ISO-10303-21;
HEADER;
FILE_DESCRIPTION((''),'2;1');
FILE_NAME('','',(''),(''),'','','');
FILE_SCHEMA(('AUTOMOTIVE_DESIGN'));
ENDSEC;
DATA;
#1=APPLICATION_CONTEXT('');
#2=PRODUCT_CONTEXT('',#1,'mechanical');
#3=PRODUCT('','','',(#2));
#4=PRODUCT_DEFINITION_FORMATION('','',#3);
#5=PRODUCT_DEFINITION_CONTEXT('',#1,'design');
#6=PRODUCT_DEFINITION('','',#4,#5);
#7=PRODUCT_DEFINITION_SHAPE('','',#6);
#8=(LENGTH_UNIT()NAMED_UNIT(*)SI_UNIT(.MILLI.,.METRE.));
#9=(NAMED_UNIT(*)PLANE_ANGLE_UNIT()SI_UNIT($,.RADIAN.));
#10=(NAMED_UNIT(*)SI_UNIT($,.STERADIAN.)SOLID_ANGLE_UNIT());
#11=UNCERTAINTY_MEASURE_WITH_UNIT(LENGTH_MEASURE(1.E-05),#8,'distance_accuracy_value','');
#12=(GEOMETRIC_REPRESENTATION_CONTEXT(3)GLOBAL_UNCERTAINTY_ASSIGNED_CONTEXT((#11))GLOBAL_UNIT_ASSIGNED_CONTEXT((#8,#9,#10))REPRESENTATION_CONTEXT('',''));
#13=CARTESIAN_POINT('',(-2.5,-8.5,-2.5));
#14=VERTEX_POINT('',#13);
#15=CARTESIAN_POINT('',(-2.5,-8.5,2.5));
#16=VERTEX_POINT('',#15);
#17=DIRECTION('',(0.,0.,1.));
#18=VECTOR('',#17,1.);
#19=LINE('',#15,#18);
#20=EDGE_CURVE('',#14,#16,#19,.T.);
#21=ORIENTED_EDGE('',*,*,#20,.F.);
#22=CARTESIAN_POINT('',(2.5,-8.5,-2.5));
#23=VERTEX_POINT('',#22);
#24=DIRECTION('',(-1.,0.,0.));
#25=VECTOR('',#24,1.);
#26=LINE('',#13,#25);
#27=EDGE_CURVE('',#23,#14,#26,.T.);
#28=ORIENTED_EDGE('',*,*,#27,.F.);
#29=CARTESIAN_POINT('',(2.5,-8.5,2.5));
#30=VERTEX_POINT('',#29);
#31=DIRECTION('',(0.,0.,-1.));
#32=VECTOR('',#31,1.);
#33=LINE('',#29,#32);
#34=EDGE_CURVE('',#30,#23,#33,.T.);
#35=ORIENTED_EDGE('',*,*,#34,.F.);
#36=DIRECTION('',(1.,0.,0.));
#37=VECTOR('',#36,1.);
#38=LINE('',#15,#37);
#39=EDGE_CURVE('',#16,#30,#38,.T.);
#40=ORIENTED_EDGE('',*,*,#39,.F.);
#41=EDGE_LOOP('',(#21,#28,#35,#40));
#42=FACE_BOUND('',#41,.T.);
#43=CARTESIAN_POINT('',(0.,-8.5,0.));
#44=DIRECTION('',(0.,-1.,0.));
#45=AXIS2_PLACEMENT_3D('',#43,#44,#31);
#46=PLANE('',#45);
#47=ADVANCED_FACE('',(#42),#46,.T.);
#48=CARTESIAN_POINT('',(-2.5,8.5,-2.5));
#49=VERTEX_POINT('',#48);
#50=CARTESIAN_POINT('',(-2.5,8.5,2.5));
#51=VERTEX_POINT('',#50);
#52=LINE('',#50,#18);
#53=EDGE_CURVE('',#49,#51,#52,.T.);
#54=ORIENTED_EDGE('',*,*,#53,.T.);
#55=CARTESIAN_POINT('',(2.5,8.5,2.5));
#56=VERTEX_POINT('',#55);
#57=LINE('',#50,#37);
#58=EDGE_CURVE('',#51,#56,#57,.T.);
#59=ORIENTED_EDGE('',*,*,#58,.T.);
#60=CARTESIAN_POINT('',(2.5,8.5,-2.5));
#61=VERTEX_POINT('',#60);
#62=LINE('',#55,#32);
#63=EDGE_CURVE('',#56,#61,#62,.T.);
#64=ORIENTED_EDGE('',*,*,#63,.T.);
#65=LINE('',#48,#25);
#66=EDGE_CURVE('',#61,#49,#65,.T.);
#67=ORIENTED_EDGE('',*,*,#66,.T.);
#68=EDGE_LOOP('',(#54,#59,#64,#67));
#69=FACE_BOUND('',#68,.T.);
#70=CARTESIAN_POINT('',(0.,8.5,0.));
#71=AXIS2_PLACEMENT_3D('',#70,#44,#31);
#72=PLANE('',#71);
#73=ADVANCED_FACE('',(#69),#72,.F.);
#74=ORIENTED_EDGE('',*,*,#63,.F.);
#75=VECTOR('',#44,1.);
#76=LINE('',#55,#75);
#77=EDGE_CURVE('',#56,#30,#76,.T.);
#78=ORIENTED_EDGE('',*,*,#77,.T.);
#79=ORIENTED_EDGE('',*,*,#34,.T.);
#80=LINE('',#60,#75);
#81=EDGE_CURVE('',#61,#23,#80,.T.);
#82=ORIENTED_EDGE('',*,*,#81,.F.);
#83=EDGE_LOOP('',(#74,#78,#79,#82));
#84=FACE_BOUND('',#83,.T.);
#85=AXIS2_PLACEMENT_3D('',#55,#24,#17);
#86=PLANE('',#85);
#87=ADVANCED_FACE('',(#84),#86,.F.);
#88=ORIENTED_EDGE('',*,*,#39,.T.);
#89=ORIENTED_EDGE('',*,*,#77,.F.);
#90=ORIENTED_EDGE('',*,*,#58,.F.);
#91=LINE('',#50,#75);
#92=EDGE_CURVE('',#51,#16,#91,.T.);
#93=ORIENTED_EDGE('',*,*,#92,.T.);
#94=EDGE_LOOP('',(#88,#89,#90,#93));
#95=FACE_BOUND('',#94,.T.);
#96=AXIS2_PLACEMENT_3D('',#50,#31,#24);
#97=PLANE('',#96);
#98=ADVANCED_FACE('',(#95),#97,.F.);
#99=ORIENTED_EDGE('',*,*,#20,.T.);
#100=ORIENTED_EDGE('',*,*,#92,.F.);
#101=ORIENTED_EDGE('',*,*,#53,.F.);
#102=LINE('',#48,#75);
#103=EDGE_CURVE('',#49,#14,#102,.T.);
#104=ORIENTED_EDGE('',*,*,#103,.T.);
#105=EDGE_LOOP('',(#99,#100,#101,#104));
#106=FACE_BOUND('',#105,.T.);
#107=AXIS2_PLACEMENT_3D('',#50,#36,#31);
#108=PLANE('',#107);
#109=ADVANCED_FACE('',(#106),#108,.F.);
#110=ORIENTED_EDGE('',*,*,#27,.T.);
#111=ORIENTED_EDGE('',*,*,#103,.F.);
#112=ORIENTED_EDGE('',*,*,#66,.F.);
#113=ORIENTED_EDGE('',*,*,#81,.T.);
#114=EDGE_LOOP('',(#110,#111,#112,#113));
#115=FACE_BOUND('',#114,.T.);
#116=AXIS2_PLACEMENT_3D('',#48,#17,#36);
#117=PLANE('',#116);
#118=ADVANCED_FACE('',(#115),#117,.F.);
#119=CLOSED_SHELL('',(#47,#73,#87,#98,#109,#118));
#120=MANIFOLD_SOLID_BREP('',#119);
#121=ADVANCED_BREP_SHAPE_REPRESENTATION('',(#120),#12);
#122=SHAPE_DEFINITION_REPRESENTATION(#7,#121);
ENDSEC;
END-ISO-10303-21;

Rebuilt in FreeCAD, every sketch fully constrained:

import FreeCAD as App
import Part
import Sketcher
from FreeCAD import Vector
Q = App.Units.Quantity


def add_polygon(sketch, points):
    """Adds a closed chain of lines whose ends are joined by coincident constraints."""
    first, n = sketch.GeometryCount, len(points)
    for a, b in zip(points, points[1:] + points[:1]):
        sketch.addGeometry(Part.LineSegment(App.Vector(*a, 0), App.Vector(*b, 0)), False)
    for i in range(n):
        sketch.addConstraint(Sketcher.Constraint("Coincident", first + i, 2, first + (i + 1) % n, 1))

doc = App.newDocument("Part")
body = doc.addObject("PartDesign::Body", "Body")

# Sketch on XZ plane
sketch1 = doc.addObject("Sketcher::SketchObject", "Sketch")
body.addObject(sketch1)
sketch1.AttachmentSupport = (doc.XZ_Plane, [""])
sketch1.MapMode = "FlatFace"
add_polygon(sketch1, [(-2.5, -2.5), (-2.5, 2.5), (2.5, 2.5), (2.5, -2.5)])  # lines 0-3
sketch1.addConstraint(Sketcher.Constraint("Vertical", 0))
sketch1.addConstraint(Sketcher.Constraint("Horizontal", 1))
sketch1.addConstraint(Sketcher.Constraint("Vertical", 2))
sketch1.addConstraint(Sketcher.Constraint("Horizontal", 3))
sketch1.addConstraint(Sketcher.Constraint("Symmetric", 0, 2, 2, 2, -1, 1))
sketch1.addConstraint(Sketcher.Constraint("Equal", 3, 0))
sketch1.addConstraint(Sketcher.Constraint("DistanceX", 1, 1, 1, 2, Q("5 mm")))
pad1 = doc.addObject("PartDesign::Pad", "Pad")
body.addObject(pad1)
pad1.Profile = sketch1
pad1.Length = 17
pad1.Midplane = True

doc.recompute()
